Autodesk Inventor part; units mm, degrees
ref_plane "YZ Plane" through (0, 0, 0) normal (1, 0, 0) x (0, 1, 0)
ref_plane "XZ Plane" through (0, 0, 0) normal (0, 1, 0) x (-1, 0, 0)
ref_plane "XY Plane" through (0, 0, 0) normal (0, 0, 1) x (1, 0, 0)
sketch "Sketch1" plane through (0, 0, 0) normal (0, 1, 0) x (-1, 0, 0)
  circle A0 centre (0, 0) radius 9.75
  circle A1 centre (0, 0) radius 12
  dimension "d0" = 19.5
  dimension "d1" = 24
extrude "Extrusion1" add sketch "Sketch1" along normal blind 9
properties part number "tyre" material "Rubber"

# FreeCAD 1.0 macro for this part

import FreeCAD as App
import Part
import Sketcher

V = App.Vector

doc = App.newDocument("Part")
body = doc.addObject("PartDesign::Body", "Body")

sketch1 = body.newObject("Sketcher::SketchObject", "Sketch")
sketch1.AttachmentSupport = (doc.getObject("XZ_Plane"), [""])
sketch1.MapMode = "FlatFace"
sketch1.addGeometry(Part.Circle(V(0, 0, 0), V(0, 0, 1), 12), False)
sketch1.addGeometry(Part.Circle(V(0, 0, 0), V(0, 0, 1), 10), False)
sketch1.addConstraint(Sketcher.Constraint("Coincident", 0, 3, -1, 1))
sketch1.addConstraint(Sketcher.Constraint("Coincident", 1, 3, -1, 1))
sketch1.addConstraint(Sketcher.Constraint("Diameter", 0, 24.0))
sketch1.addConstraint(Sketcher.Constraint("Diameter", 1, 19.5))
pad1 = body.newObject("PartDesign::Pad", "Pad")
pad1.Profile = sketch1
pad1.Length = 9
pad1.Reversed = True

doc.recompute()
